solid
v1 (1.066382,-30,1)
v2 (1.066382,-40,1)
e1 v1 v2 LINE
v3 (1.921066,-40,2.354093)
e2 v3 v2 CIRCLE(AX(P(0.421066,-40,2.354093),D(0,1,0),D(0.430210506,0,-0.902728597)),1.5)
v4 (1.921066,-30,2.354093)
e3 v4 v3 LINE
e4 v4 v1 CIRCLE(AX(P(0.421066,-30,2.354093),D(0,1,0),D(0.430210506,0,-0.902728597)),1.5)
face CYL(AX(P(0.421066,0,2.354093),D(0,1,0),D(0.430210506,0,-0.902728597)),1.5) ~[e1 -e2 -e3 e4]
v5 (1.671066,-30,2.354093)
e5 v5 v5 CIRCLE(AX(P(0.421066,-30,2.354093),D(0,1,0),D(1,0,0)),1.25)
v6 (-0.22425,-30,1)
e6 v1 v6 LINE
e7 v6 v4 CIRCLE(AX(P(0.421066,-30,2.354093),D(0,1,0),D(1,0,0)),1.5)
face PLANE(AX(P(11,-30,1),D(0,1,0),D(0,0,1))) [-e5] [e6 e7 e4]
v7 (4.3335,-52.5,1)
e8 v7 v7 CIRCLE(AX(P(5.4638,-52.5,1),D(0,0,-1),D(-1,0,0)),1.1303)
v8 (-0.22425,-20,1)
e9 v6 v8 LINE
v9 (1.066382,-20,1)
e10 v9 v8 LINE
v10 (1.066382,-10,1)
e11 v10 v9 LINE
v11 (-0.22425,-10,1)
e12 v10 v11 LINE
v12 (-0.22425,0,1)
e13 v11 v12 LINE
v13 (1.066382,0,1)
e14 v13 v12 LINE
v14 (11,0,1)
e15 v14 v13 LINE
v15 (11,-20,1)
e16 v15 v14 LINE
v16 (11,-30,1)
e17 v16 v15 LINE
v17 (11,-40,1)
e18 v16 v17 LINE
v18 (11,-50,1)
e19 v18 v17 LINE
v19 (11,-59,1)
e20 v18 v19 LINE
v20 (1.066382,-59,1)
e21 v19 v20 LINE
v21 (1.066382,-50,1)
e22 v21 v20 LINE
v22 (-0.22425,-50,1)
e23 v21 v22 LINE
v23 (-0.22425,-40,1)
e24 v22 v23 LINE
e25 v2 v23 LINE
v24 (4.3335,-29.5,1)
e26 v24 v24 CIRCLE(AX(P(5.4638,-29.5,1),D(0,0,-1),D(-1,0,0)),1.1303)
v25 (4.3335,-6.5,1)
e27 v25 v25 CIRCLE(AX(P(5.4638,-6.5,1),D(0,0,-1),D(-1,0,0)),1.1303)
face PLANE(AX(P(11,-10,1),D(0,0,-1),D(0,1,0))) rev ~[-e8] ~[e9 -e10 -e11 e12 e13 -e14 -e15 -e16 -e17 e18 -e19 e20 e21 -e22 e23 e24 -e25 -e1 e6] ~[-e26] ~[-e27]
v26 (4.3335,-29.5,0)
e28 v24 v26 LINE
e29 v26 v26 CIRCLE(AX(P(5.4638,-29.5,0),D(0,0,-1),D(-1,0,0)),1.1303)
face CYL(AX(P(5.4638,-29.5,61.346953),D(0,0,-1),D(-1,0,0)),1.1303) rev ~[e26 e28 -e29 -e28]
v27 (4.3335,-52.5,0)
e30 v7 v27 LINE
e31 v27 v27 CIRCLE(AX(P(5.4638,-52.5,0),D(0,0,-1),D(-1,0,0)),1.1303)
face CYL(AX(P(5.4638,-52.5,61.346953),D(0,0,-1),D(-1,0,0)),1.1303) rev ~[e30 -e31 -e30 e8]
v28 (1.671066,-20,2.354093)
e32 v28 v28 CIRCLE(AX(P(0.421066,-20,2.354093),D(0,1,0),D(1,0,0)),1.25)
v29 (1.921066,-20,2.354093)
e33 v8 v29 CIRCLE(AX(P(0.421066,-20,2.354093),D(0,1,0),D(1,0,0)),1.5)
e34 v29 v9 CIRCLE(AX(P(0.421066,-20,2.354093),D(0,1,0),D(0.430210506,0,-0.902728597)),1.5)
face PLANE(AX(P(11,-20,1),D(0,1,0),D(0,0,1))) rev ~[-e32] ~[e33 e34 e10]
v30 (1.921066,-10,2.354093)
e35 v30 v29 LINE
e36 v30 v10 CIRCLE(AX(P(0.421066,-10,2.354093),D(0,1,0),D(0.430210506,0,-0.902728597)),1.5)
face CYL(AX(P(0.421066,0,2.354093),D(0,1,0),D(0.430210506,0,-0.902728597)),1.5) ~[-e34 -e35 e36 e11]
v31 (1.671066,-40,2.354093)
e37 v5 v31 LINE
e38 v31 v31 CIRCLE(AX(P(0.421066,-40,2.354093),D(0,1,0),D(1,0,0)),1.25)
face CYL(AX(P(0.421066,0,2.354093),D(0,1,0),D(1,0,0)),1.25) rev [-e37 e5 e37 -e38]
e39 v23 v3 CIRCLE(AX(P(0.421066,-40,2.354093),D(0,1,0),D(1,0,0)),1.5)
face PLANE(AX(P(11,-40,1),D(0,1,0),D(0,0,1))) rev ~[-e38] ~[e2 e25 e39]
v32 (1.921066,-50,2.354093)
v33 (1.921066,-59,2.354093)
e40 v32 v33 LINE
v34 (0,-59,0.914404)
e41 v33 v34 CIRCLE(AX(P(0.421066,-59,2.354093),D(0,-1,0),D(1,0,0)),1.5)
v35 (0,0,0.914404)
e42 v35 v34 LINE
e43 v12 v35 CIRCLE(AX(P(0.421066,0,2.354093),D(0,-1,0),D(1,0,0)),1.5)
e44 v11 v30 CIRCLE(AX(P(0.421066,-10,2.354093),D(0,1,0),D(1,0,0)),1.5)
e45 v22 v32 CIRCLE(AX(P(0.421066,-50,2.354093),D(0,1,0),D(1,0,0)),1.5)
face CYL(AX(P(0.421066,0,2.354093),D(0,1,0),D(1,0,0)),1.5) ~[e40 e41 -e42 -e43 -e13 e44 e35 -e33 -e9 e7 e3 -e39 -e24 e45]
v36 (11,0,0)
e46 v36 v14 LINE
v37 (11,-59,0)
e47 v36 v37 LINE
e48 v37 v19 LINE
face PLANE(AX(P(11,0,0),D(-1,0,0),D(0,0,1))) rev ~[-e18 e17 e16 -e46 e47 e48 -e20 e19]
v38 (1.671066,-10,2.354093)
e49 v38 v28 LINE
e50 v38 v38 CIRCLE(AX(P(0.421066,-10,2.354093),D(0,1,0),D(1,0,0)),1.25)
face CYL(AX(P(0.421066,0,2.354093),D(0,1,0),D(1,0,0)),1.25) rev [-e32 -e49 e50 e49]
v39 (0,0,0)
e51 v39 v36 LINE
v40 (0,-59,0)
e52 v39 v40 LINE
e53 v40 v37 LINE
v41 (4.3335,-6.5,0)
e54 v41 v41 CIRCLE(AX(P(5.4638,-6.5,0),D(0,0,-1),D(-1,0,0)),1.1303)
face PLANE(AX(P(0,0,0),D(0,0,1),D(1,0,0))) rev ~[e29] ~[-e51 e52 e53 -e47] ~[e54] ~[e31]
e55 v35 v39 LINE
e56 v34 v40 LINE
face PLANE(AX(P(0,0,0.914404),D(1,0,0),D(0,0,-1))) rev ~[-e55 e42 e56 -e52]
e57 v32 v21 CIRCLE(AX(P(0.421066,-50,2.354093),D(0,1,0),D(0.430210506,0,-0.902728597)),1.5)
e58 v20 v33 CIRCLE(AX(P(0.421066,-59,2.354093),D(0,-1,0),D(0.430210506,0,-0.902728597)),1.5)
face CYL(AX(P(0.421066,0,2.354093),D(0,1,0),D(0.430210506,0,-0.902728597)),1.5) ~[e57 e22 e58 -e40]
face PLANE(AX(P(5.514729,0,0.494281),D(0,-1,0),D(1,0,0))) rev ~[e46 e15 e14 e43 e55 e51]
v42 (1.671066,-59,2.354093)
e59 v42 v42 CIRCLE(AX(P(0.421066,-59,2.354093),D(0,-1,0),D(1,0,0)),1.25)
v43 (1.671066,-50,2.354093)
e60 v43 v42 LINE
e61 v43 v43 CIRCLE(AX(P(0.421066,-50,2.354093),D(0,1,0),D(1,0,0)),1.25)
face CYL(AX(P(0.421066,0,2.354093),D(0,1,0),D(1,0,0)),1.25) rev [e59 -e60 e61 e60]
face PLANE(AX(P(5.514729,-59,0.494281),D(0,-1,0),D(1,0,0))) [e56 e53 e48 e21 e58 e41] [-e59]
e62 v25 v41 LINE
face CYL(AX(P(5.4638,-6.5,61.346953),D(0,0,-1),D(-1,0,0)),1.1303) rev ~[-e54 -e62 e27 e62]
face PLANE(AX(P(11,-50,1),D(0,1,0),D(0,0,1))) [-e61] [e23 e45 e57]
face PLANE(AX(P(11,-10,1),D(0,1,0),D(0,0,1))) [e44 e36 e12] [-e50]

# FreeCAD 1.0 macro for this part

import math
import FreeCAD as App
import Part
import Sketcher

V = App.Vector
Q = App.Units.Quantity


def add_polygon(sketch, points):
    """Adds a closed chain of lines whose ends are joined by coincident constraints."""
    first, n = sketch.GeometryCount, len(points)
    for a, b in zip(points, points[1:] + points[:1]):
        sketch.addGeometry(Part.LineSegment(App.Vector(*a, 0), App.Vector(*b, 0)), False)
    for i in range(n):
        sketch.addConstraint(Sketcher.Constraint("Coincident", first + i, 2, first + (i + 1) % n, 1))

doc = App.newDocument("Part")
body = doc.addObject("PartDesign::Body", "Body")

# Sketch on XZ plane
sketch1 = body.newObject("Sketcher::SketchObject", "Sketch")
sketch1.AttachmentSupport = (doc.getObject("XZ_Plane"), [""])
sketch1.MapMode = "FlatFace"
sketch1.addGeometry([
    Part.LineSegment(V(0, 0.9, 0), V(0, 0, 0)),  # 0
    Part.LineSegment(V(0, 0, 0), V(11, 0, 0)),  # 1
    Part.LineSegment(V(11, 0, 0), V(11, 1, 0)),  # 2
    Part.LineSegment(V(11, 1, 0), V(1.1, 1, 0)),  # 3
    Part.ArcOfCircle(Part.Circle(V(0.4, 2.4, 0), V(0, 0, 1), 1.5), math.radians(-65), math.radians(0)),  # 4
    Part.ArcOfCircle(Part.Circle(V(0.4, 2.4, 0), V(0, 0, 1), 1.5), math.radians(0), math.radians(254)),  # 5
    Part.Circle(V(0.4, 2.4, 0), V(0, 0, 1), 1.2),  # 6
], False)
sketch1.addConstraint([
    Sketcher.Constraint("Coincident", 0, 2, 1, 1),
    Sketcher.Constraint("Coincident", 1, 2, 2, 1),
    Sketcher.Constraint("Coincident", 2, 2, 3, 1),
    Sketcher.Constraint("Coincident", 3, 2, 4, 1),
    Sketcher.Constraint("Tangent", 4, 2, 5, 1),
    Sketcher.Constraint("Coincident", 5, 2, 0, 1),
    Sketcher.Constraint("Vertical", 0),
    Sketcher.Constraint("Horizontal", 1),
    Sketcher.Constraint("Vertical", 2),
    Sketcher.Constraint("Horizontal", 3),
    Sketcher.Constraint("Coincident", 0, 2, -1, 1),
    Sketcher.Constraint("Coincident", 6, 3, 4, 3),
    Sketcher.Constraint("Equal", 4, 5),
    Sketcher.Constraint("Horizontal", 6, 3, 4, 2),
    Sketcher.Constraint("Diameter", 6, Q("2.5 mm")),
    Sketcher.Constraint("Radius", 4, Q("1.5 mm")),
    Sketcher.Constraint("DistanceX", 1, 1, 1, 2, Q("11 mm")),
    Sketcher.Constraint("DistanceY", 2, 1, 2, 2, Q("1 mm")),
    Sketcher.Constraint("DistanceX", 3, 2, 3, 1, Q("9.933618 mm")),
    Sketcher.Constraint("DistanceY", 0, 2, 0, 1, Q("0.914404 mm")),
])
pad1 = body.newObject("PartDesign::Pad", "Pad")
pad1.Profile = sketch1
pad1.Length = 59

# Sketch on YZ plane
sketch2 = body.newObject("Sketcher::SketchObject", "Sketch001")
sketch2.AttachmentSupport = (doc.getObject("YZ_Plane"), [""])
sketch2.MapMode = "FlatFace"
sketch2.AttachmentOffset = App.Placement(V(0, 0, 11), App.Rotation())
add_polygon(sketch2, [(-50, 8), (-50, 1), (-40, 1), (-40, 8)])  # lines 0-3
add_polygon(sketch2, [(-30, 8), (-30, 1), (-20, 1), (-20, 8)])  # lines 4-7
add_polygon(sketch2, [(-10, 8), (-10, 1), (0, 1), (0, 8)])  # lines 8-11
sketch2.addConstraint([
    Sketcher.Constraint("Vertical", 0),
    Sketcher.Constraint("Horizontal", 1),
    Sketcher.Constraint("Vertical", 2),
    Sketcher.Constraint("Horizontal", 3),
    Sketcher.Constraint("Vertical", 4),
    Sketcher.Constraint("Horizontal", 5),
    Sketcher.Constraint("Vertical", 6),
    Sketcher.Constraint("Horizontal", 7),
    Sketcher.Constraint("Vertical", 8),
    Sketcher.Constraint("Horizontal", 9),
    Sketcher.Constraint("Vertical", 10),
    Sketcher.Constraint("Horizontal", 11),
    Sketcher.Constraint("PointOnObject", 9, 2, -2),
    Sketcher.Constraint("Horizontal", 1, 2, 4, 2),
    Sketcher.Constraint("Horizontal", 5, 2, 8, 2),
    Sketcher.Constraint("Horizontal", 7, 2, 10, 2),
    Sketcher.Constraint("Equal", 3, 5),
    Sketcher.Constraint("Equal", 7, 9),
    Sketcher.Constraint("DistanceX", 1, 1, 1, 2, Q("10 mm")),
    Sketcher.Constraint("DistanceX", 0, 2, -1, 1, Q("50 mm")),
    Sketcher.Constraint("DistanceY", -1, 1, 0, 2, Q("1 mm")),
    Sketcher.Constraint("DistanceX", 4, 2, -1, 1, Q("30 mm")),
    Sketcher.Constraint("DistanceY", 0, 2, 0, 1, Q("7.009465 mm")),
    Sketcher.Constraint("DistanceY", 4, 2, 4, 1, Q("7.114136 mm")),
])
pocket1 = body.newObject("PartDesign::Pocket", "Pocket")
pocket1.Profile = sketch2
pocket1.Type = "ThroughAll"

# Sketch on XY plane
sketch3 = body.newObject("Sketcher::SketchObject", "Sketch002")
sketch3.AttachmentSupport = (doc.getObject("XY_Plane"), [""])
sketch3.MapMode = "FlatFace"
sketch3.AttachmentOffset = App.Placement(V(0, 0, 1), App.Rotation())
sketch3.addGeometry([
    Part.Circle(V(5.5, -6.5, 0), V(0, 0, 1), 1.1),
    Part.Circle(V(5.5, -29.5, 0), V(0, 0, 1), 1.1),
    Part.Circle(V(5.5, -52.5, 0), V(0, 0, 1), 1.1),
], False)
sketch3.addConstraint([
    Sketcher.Constraint("Equal", 0, 1),
    Sketcher.Constraint("Equal", 1, 2),
    Sketcher.Constraint("Vertical", 0, 3, 1, 3),
    Sketcher.Constraint("Vertical", 1, 3, 2, 3),
    Sketcher.Constraint("DistanceY", 1, 3, 0, 3, Q("23 mm")),
    Sketcher.Constraint("DistanceY", 2, 3, 1, 3, Q("23 mm")),
    Sketcher.Constraint("Diameter", 0, Q("2.2606 mm")),
    Sketcher.Constraint("DistanceY", 0, 3, -1, 1, Q("6.5 mm")),
    Sketcher.Constraint("DistanceX", -1, 1, 0, 3, Q("5.4638 mm")),
])
doc.recompute()
hole = body.newObject("PartDesign::Hole", "Hole")
hole.Profile = sketch3
hole.ThreadType = "None"
hole.Diameter = 2.2606
hole.DepthType = "ThroughAll"

doc.recompute()
